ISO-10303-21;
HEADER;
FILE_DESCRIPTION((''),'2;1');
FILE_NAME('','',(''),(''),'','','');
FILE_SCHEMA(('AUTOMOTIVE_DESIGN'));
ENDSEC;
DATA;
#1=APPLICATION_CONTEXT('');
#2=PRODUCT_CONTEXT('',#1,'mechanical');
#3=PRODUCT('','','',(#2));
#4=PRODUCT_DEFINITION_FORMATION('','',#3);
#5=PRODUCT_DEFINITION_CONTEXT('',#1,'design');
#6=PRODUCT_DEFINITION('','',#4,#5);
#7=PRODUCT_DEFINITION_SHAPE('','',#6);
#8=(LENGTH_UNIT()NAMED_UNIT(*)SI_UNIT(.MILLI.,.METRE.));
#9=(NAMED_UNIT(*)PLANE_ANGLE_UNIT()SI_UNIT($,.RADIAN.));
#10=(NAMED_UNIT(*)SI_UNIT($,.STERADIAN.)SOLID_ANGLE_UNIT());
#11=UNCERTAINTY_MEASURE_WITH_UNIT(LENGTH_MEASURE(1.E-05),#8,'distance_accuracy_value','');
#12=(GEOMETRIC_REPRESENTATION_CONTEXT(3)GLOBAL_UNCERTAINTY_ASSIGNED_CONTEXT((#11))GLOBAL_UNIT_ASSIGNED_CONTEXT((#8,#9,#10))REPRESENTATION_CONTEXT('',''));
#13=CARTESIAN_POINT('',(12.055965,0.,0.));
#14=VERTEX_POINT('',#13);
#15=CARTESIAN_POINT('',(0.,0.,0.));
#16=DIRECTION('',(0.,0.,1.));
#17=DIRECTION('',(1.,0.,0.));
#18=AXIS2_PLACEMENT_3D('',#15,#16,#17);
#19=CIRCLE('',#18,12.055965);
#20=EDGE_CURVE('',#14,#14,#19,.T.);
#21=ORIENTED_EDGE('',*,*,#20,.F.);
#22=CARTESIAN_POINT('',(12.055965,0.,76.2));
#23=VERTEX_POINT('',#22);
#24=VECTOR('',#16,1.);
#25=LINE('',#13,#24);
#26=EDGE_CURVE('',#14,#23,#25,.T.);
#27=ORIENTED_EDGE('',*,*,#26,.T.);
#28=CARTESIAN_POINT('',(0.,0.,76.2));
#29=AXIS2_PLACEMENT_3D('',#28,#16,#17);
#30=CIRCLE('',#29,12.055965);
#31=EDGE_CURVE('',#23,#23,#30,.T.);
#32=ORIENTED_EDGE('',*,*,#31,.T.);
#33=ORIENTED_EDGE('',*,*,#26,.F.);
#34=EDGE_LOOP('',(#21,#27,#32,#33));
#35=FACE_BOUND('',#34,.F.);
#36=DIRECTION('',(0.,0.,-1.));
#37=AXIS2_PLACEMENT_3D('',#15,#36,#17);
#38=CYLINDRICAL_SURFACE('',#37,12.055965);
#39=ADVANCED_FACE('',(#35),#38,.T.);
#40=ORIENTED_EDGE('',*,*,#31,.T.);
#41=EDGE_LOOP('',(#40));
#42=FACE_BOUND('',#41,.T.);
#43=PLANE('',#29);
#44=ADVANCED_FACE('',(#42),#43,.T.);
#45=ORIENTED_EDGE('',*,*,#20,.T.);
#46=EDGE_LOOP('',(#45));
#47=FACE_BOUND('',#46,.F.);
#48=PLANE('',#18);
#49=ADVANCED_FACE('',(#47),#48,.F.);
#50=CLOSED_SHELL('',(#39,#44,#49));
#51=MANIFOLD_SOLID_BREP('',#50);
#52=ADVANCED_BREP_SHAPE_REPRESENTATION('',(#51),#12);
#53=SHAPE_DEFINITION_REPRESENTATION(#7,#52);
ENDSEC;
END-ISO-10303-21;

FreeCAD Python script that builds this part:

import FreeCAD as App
import Part
import Sketcher

doc = App.newDocument("Part")
params = doc.addObject("Spreadsheet::Sheet", "Params")
for row, (alias, value) in enumerate([
    ("pad1_length", "4 in"),
    ("pad2_length", "3 in"),
], start=1):
    params.set(f"A{row}", alias)
    params.set(f"B{row}", "=" + value)
    params.setAlias(f"B{row}", alias)

body = doc.addObject("PartDesign::Body", "Body")

# Sketch on XY plane
sketch1 = body.newObject("Sketcher::SketchObject", "Sketch")
sketch1.AttachmentSupport = (doc.getObject("XY_Plane"), [""])
sketch1.MapMode = "FlatFace"
sketch1.addGeometry(Part.Circle(App.Vector(0, 0, 0), App.Vector(0, 0, 1), 12), False)
sketch1.addConstraint([
    Sketcher.Constraint("Coincident", 0, 3, -1, 1),
    Sketcher.Constraint("Diameter", 0, 24.111931),
])
pad1 = body.newObject("PartDesign::Pad", "Pad")
pad1.Profile = sketch1
pad1.setExpression("Length", "Params.pad1_length")
body2 = doc.addObject("PartDesign::Body", "Body001")

# Sketch on XY plane
sketch2 = body2.newObject("Sketcher::SketchObject", "Sketch001")
sketch2.AttachmentSupport = (doc.getObject("XY_Plane001"), [""])
sketch2.MapMode = "FlatFace"
sketch2.addGeometry(Part.Circle(App.Vector(0, 0, 0), App.Vector(0, 0, 1), 12), False)
sketch2.addConstraint([
    Sketcher.Constraint("Coincident", 0, 3, -1, 1),
    Sketcher.Constraint("Diameter", 0, 24.111931),
])
pad2 = body2.newObject("PartDesign::Pad", "Pad001")
pad2.Profile = sketch2
pad2.setExpression("Length", "Params.pad2_length")
body.Visibility = False

doc.recompute()
